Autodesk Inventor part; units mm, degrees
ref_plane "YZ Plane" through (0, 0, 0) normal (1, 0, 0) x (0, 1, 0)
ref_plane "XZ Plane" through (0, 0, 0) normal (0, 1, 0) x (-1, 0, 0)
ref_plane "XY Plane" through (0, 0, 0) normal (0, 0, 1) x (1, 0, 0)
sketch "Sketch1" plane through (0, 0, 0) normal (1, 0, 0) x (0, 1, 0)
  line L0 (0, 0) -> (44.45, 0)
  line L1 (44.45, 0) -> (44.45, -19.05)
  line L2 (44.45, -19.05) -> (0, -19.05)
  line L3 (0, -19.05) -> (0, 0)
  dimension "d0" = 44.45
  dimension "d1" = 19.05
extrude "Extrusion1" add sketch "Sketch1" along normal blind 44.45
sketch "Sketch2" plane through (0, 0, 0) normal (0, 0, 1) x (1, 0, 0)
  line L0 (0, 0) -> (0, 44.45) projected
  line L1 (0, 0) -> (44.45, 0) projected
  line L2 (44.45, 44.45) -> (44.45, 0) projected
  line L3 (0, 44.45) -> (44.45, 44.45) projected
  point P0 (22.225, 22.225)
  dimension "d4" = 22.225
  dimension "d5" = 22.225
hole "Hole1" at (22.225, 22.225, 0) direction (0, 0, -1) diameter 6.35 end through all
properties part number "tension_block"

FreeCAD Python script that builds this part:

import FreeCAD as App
import Part
import Sketcher

V = App.Vector
Q = App.Units.Quantity

doc = App.newDocument("Part")
body = doc.addObject("PartDesign::Body", "Body")

# Sketch on YZ plane
sketch1 = body.newObject("Sketcher::SketchObject", "Sketch")
sketch1.AttachmentSupport = (doc.getObject("YZ_Plane"), [""])
sketch1.MapMode = "FlatFace"
sketch1.addGeometry(Part.LineSegment(V(44.45, 0, 0), V(0, 0, 0)), False)
sketch1.addGeometry(Part.LineSegment(V(0, 0, 0), V(0, -19.05, 0)), False)
sketch1.addGeometry(Part.LineSegment(V(0, -19.05, 0), V(44.45, -19.05, 0)), False)
sketch1.addGeometry(Part.LineSegment(V(44.45, -19.05, 0), V(44.45, 0, 0)), False)
sketch1.addConstraint(Sketcher.Constraint("Coincident", 0, 2, 1, 1))
sketch1.addConstraint(Sketcher.Constraint("Coincident", 1, 2, 2, 1))
sketch1.addConstraint(Sketcher.Constraint("Coincident", 2, 2, 3, 1))
sketch1.addConstraint(Sketcher.Constraint("Coincident", 3, 2, 0, 1))
sketch1.addConstraint(Sketcher.Constraint("Horizontal", 0))
sketch1.addConstraint(Sketcher.Constraint("Vertical", 1))
sketch1.addConstraint(Sketcher.Constraint("Horizontal", 2))
sketch1.addConstraint(Sketcher.Constraint("Vertical", 3))
sketch1.addConstraint(Sketcher.Constraint("Coincident", 0, 2, -1, 1))
sketch1.addConstraint(Sketcher.Constraint("DistanceX", 0, 2, 0, 1, Q("1.75 in")))
sketch1.addConstraint(Sketcher.Constraint("DistanceY", 1, 2, 1, 1, Q("0.75 in")))
pad1 = body.newObject("PartDesign::Pad", "Pad")
pad1.Profile = sketch1
pad1.Length = Q("1.75 in")

# Sketch on XY plane
sketch2 = body.newObject("Sketcher::SketchObject", "Sketch001")
sketch2.AttachmentSupport = (doc.getObject("XY_Plane"), [""])
sketch2.MapMode = "FlatFace"
sketch2.addGeometry(Part.Circle(V(22.225, 22.225, 0), V(0, 0, 1), 3.175), False)
sketch2.addConstraint(Sketcher.Constraint("Diameter", 0, Q("0.25 in")))
sketch2.addConstraint(Sketcher.Constraint("DistanceX", -1, 1, 0, 3, Q("0.875 in")))
sketch2.addConstraint(Sketcher.Constraint("DistanceY", -1, 1, 0, 3, Q("0.875 in")))
doc.recompute()
hole = body.newObject("PartDesign::Hole", "Hole")
hole.Profile = sketch2
hole.ThreadType = "None"
hole.Diameter = Q("0.25 in")
hole.DepthType = "ThroughAll"

doc.recompute()
